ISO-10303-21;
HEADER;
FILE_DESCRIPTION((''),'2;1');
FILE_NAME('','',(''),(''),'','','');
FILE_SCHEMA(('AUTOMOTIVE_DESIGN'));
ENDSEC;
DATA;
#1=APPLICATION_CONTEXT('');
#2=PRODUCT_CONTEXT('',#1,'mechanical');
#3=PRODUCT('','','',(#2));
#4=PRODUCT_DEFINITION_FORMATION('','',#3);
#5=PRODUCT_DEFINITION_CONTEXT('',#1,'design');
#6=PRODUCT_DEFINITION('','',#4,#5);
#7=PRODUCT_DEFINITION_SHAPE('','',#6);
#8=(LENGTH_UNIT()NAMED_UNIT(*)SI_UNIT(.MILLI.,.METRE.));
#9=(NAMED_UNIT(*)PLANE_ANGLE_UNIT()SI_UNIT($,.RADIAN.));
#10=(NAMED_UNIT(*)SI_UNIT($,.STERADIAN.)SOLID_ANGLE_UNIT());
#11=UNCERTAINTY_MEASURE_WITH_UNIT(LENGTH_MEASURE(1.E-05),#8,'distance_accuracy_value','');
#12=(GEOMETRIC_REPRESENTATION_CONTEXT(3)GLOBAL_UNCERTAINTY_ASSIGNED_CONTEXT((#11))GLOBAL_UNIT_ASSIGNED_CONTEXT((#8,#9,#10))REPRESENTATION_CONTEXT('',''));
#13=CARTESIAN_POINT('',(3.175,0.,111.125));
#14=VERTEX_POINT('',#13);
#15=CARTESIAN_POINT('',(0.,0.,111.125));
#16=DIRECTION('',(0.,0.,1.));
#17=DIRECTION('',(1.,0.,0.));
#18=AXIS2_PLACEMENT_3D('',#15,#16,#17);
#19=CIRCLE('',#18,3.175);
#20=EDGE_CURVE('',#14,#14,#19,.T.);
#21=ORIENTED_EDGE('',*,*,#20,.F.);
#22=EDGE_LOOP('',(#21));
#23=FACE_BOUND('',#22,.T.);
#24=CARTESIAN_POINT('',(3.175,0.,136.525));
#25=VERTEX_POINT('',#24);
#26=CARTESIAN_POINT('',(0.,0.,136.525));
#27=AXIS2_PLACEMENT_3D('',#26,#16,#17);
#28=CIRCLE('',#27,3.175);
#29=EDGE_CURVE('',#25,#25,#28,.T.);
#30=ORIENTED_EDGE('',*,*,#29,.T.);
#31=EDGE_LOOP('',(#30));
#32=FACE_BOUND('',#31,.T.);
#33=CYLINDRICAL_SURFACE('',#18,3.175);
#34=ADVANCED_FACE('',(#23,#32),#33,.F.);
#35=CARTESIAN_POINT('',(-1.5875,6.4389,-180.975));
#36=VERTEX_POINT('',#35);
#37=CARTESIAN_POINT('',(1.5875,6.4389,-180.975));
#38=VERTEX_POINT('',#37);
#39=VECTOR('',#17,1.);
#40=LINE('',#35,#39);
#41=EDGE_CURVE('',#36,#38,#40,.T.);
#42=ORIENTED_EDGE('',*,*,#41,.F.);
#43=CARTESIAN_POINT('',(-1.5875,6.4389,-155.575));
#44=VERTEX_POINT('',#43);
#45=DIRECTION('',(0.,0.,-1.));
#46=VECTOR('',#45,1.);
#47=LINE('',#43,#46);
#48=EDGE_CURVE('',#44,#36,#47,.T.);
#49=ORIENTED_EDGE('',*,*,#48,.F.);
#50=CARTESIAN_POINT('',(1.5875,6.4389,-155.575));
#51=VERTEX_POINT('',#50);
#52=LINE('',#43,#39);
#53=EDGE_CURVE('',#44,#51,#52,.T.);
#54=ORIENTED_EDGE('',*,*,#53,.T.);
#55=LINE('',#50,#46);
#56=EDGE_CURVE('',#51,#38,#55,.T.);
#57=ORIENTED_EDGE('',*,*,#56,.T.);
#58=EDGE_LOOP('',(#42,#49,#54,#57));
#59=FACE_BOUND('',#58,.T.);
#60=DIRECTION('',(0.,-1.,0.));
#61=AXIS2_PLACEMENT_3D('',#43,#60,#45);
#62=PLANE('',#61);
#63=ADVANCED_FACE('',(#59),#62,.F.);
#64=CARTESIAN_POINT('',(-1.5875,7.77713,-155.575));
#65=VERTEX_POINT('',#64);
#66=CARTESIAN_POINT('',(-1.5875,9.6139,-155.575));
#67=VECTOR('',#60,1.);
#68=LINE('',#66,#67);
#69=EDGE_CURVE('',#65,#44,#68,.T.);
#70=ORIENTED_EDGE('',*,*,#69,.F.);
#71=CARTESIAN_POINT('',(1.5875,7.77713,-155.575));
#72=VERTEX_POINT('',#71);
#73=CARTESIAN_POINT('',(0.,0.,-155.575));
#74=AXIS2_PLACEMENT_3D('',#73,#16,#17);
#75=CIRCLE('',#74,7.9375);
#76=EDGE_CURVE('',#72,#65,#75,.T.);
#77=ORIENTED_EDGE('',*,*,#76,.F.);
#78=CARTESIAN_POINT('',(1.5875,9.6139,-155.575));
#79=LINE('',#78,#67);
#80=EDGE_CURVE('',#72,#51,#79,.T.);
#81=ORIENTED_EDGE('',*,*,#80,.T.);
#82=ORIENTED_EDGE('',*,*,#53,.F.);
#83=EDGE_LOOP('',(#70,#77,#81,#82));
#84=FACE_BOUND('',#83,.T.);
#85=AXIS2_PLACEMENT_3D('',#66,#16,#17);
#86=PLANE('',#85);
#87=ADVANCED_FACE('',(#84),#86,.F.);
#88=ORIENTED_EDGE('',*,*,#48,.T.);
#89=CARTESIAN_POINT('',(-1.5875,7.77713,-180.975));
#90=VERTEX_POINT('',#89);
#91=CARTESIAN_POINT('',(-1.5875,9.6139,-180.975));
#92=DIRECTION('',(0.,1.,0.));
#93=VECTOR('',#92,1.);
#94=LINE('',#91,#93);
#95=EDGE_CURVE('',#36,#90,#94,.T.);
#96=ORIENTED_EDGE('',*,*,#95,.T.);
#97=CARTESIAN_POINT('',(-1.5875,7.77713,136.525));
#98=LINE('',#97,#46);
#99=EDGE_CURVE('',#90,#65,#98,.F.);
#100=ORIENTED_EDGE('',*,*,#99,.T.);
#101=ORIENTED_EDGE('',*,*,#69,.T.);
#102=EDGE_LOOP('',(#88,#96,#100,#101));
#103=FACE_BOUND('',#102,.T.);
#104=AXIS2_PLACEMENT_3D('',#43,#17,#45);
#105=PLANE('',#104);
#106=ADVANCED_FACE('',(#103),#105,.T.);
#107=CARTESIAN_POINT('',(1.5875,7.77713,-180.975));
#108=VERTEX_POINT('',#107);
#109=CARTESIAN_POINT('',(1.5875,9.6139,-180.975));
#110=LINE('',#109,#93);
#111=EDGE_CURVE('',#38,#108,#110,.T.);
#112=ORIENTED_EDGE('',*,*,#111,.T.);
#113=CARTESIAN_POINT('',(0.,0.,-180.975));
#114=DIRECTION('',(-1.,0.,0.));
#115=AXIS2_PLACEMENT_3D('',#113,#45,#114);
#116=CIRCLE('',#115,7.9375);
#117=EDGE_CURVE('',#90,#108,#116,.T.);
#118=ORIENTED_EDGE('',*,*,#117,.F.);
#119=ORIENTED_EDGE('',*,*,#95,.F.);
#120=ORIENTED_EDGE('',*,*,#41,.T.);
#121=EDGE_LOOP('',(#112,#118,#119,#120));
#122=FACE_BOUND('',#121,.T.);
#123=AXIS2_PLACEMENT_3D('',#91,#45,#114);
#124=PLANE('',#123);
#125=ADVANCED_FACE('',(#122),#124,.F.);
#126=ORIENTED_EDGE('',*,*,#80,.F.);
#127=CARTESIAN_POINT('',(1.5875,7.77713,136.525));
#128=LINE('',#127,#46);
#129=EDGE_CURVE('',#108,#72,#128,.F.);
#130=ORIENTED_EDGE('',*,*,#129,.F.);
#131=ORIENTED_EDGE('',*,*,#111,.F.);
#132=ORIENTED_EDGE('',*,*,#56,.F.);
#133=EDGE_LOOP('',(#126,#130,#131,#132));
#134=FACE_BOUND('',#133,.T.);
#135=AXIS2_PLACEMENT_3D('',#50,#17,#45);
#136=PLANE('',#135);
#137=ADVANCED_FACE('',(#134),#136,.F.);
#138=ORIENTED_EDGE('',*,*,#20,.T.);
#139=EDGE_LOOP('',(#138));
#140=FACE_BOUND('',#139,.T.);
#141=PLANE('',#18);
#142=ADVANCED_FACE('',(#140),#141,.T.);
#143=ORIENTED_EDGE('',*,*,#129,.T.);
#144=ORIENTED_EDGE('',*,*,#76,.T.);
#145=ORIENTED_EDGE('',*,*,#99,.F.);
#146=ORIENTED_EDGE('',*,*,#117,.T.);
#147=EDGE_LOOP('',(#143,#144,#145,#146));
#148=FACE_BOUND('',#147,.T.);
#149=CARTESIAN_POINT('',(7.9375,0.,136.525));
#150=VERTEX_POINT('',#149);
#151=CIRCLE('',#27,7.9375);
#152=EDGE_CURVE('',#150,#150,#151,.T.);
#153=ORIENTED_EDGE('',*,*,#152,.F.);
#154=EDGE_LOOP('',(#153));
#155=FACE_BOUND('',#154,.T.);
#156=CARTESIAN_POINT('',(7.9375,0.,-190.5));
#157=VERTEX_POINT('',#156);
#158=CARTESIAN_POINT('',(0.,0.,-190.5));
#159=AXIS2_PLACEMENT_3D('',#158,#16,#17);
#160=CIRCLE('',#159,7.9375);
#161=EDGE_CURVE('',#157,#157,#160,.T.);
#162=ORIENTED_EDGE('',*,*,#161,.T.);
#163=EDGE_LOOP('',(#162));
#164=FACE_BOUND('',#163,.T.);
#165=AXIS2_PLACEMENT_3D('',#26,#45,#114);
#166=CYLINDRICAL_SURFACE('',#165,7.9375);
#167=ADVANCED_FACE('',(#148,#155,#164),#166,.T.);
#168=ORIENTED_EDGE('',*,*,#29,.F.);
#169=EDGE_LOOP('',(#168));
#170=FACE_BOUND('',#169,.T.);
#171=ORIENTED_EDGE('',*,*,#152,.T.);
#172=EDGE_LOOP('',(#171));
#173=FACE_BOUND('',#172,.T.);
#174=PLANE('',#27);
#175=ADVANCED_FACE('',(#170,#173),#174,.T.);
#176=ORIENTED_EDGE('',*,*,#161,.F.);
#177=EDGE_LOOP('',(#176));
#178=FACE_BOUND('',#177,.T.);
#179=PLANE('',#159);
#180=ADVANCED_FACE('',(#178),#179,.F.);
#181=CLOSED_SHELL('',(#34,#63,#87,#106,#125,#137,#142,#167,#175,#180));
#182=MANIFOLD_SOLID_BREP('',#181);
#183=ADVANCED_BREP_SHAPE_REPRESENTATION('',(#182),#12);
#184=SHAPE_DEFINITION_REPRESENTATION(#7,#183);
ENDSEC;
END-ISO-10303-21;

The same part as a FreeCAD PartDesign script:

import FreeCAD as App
import Part
import Sketcher
Q = App.Units.Quantity

doc = App.newDocument("Part")
params = doc.addObject("Spreadsheet::Sheet", "Params")
for row, (alias, value) in enumerate([
    ("sketch1_diameter", "0.625 in"),
    ("pad1_length", "5.375 in"),
    ("pad1_length2", "7.5 in"),
    ("sketch2_diameter", "0.25 in"),
    ("pocket1_length", "1 in"),
    ("sketch3_height", "1 in"),
    ("sketch3_width", "0.125 in"),
    ("pocket2_length", "0.125 in"),
], start=1):
    params.set(f"A{row}", alias)
    params.set(f"B{row}", "=" + value)
    params.setAlias(f"B{row}", alias)

body = doc.addObject("PartDesign::Body", "Body")

# Sketch on XY plane
sketch1 = doc.addObject("Sketcher::SketchObject", "Sketch")
body.addObject(sketch1)
sketch1.AttachmentSupport = (doc.XY_Plane, [""])
sketch1.MapMode = "FlatFace"
sketch1.addGeometry(Part.Circle(App.Vector(0, 0, 0), App.Vector(0, 0, 1), 8), False)
sketch1.addConstraint(Sketcher.Constraint("Coincident", 0, 3, -1, 1))
sketch1.addConstraint(Sketcher.Constraint("Diameter", 0, Q("0.625 in")))
sketch1.setExpression("Constraints[1]", "Params.sketch1_diameter")
pad1 = doc.addObject("PartDesign::Pad", "Pad")
body.addObject(pad1)
pad1.Profile = sketch1
pad1.Type = "TwoLengths"
pad1.setExpression("Length", "Params.pad1_length")
pad1.setExpression("Length2", "Params.pad1_length2")

# Sketch on XY plane
sketch2 = doc.addObject("Sketcher::SketchObject", "Sketch001")
body.addObject(sketch2)
sketch2.AttachmentSupport = (doc.XY_Plane, [""])
sketch2.MapMode = "FlatFace"
sketch2.AttachmentOffset = App.Placement(App.Vector(0, 0, 5.375 * 25.4), App.Rotation())
sketch2.addGeometry(Part.Circle(App.Vector(0, 0, 0), App.Vector(0, 0, 1), 3.2), False)
sketch2.addConstraint(Sketcher.Constraint("Coincident", 0, 3, -1, 1))
sketch2.addConstraint(Sketcher.Constraint("Diameter", 0, Q("0.25 in")))
sketch2.setExpression("Constraints[1]", "Params.sketch2_diameter")
pocket1 = doc.addObject("PartDesign::Pocket", "Pocket")
body.addObject(pocket1)
pocket1.Profile = sketch2
pocket1.setExpression("Length", "Params.pocket1_length")

# Sketch on YZ plane
sketch3 = doc.addObject("Sketcher::SketchObject", "Sketch002")
body.addObject(sketch3)
sketch3.AttachmentSupport = (doc.YZ_Plane, [""])
sketch3.MapMode = "FlatFace"
sketch3.addGeometry(Part.LineSegment(App.Vector(9.6, -155.6, 0), App.Vector(6.4, -155.6, 0)), False)
sketch3.addGeometry(Part.LineSegment(App.Vector(6.4, -155.6, 0), App.Vector(6.4, -181, 0)), False)
sketch3.addGeometry(Part.LineSegment(App.Vector(6.4, -181, 0), App.Vector(9.6, -181, 0)), False)
sketch3.addGeometry(Part.LineSegment(App.Vector(9.6, -181, 0), App.Vector(9.6, -155.6, 0)), False)
sketch3.addConstraint(Sketcher.Constraint("Coincident", 0, 2, 1, 1))
sketch3.addConstraint(Sketcher.Constraint("Coincident", 1, 2, 2, 1))
sketch3.addConstraint(Sketcher.Constraint("Coincident", 2, 2, 3, 1))
sketch3.addConstraint(Sketcher.Constraint("Coincident", 3, 2, 0, 1))
sketch3.addConstraint(Sketcher.Constraint("Horizontal", 0))
sketch3.addConstraint(Sketcher.Constraint("Vertical", 1))
sketch3.addConstraint(Sketcher.Constraint("Horizontal", 2))
sketch3.addConstraint(Sketcher.Constraint("Vertical", 3))
sketch3.addConstraint(Sketcher.Constraint("DistanceY", 1, 2, 1, 1, Q("1 in")))
sketch3.addConstraint(Sketcher.Constraint("DistanceX", 0, 2, 0, 1, Q("0.125 in")))
sketch3.addConstraint(Sketcher.Constraint("DistanceY", 0, 2, -1, 1, Q("6.125 in")))
sketch3.addConstraint(Sketcher.Constraint("DistanceX", -1, 1, 0, 2, Q("0.2535 in")))
sketch3.setExpression("Constraints[8]", "Params.sketch3_height")
sketch3.setExpression("Constraints[9]", "Params.sketch3_width")
pocket2 = doc.addObject("PartDesign::Pocket", "Pocket001")
body.addObject(pocket2)
pocket2.Profile = sketch3
pocket2.setExpression("Length", "Params.pocket2_length")
pocket2.Midplane = True

doc.recompute()
